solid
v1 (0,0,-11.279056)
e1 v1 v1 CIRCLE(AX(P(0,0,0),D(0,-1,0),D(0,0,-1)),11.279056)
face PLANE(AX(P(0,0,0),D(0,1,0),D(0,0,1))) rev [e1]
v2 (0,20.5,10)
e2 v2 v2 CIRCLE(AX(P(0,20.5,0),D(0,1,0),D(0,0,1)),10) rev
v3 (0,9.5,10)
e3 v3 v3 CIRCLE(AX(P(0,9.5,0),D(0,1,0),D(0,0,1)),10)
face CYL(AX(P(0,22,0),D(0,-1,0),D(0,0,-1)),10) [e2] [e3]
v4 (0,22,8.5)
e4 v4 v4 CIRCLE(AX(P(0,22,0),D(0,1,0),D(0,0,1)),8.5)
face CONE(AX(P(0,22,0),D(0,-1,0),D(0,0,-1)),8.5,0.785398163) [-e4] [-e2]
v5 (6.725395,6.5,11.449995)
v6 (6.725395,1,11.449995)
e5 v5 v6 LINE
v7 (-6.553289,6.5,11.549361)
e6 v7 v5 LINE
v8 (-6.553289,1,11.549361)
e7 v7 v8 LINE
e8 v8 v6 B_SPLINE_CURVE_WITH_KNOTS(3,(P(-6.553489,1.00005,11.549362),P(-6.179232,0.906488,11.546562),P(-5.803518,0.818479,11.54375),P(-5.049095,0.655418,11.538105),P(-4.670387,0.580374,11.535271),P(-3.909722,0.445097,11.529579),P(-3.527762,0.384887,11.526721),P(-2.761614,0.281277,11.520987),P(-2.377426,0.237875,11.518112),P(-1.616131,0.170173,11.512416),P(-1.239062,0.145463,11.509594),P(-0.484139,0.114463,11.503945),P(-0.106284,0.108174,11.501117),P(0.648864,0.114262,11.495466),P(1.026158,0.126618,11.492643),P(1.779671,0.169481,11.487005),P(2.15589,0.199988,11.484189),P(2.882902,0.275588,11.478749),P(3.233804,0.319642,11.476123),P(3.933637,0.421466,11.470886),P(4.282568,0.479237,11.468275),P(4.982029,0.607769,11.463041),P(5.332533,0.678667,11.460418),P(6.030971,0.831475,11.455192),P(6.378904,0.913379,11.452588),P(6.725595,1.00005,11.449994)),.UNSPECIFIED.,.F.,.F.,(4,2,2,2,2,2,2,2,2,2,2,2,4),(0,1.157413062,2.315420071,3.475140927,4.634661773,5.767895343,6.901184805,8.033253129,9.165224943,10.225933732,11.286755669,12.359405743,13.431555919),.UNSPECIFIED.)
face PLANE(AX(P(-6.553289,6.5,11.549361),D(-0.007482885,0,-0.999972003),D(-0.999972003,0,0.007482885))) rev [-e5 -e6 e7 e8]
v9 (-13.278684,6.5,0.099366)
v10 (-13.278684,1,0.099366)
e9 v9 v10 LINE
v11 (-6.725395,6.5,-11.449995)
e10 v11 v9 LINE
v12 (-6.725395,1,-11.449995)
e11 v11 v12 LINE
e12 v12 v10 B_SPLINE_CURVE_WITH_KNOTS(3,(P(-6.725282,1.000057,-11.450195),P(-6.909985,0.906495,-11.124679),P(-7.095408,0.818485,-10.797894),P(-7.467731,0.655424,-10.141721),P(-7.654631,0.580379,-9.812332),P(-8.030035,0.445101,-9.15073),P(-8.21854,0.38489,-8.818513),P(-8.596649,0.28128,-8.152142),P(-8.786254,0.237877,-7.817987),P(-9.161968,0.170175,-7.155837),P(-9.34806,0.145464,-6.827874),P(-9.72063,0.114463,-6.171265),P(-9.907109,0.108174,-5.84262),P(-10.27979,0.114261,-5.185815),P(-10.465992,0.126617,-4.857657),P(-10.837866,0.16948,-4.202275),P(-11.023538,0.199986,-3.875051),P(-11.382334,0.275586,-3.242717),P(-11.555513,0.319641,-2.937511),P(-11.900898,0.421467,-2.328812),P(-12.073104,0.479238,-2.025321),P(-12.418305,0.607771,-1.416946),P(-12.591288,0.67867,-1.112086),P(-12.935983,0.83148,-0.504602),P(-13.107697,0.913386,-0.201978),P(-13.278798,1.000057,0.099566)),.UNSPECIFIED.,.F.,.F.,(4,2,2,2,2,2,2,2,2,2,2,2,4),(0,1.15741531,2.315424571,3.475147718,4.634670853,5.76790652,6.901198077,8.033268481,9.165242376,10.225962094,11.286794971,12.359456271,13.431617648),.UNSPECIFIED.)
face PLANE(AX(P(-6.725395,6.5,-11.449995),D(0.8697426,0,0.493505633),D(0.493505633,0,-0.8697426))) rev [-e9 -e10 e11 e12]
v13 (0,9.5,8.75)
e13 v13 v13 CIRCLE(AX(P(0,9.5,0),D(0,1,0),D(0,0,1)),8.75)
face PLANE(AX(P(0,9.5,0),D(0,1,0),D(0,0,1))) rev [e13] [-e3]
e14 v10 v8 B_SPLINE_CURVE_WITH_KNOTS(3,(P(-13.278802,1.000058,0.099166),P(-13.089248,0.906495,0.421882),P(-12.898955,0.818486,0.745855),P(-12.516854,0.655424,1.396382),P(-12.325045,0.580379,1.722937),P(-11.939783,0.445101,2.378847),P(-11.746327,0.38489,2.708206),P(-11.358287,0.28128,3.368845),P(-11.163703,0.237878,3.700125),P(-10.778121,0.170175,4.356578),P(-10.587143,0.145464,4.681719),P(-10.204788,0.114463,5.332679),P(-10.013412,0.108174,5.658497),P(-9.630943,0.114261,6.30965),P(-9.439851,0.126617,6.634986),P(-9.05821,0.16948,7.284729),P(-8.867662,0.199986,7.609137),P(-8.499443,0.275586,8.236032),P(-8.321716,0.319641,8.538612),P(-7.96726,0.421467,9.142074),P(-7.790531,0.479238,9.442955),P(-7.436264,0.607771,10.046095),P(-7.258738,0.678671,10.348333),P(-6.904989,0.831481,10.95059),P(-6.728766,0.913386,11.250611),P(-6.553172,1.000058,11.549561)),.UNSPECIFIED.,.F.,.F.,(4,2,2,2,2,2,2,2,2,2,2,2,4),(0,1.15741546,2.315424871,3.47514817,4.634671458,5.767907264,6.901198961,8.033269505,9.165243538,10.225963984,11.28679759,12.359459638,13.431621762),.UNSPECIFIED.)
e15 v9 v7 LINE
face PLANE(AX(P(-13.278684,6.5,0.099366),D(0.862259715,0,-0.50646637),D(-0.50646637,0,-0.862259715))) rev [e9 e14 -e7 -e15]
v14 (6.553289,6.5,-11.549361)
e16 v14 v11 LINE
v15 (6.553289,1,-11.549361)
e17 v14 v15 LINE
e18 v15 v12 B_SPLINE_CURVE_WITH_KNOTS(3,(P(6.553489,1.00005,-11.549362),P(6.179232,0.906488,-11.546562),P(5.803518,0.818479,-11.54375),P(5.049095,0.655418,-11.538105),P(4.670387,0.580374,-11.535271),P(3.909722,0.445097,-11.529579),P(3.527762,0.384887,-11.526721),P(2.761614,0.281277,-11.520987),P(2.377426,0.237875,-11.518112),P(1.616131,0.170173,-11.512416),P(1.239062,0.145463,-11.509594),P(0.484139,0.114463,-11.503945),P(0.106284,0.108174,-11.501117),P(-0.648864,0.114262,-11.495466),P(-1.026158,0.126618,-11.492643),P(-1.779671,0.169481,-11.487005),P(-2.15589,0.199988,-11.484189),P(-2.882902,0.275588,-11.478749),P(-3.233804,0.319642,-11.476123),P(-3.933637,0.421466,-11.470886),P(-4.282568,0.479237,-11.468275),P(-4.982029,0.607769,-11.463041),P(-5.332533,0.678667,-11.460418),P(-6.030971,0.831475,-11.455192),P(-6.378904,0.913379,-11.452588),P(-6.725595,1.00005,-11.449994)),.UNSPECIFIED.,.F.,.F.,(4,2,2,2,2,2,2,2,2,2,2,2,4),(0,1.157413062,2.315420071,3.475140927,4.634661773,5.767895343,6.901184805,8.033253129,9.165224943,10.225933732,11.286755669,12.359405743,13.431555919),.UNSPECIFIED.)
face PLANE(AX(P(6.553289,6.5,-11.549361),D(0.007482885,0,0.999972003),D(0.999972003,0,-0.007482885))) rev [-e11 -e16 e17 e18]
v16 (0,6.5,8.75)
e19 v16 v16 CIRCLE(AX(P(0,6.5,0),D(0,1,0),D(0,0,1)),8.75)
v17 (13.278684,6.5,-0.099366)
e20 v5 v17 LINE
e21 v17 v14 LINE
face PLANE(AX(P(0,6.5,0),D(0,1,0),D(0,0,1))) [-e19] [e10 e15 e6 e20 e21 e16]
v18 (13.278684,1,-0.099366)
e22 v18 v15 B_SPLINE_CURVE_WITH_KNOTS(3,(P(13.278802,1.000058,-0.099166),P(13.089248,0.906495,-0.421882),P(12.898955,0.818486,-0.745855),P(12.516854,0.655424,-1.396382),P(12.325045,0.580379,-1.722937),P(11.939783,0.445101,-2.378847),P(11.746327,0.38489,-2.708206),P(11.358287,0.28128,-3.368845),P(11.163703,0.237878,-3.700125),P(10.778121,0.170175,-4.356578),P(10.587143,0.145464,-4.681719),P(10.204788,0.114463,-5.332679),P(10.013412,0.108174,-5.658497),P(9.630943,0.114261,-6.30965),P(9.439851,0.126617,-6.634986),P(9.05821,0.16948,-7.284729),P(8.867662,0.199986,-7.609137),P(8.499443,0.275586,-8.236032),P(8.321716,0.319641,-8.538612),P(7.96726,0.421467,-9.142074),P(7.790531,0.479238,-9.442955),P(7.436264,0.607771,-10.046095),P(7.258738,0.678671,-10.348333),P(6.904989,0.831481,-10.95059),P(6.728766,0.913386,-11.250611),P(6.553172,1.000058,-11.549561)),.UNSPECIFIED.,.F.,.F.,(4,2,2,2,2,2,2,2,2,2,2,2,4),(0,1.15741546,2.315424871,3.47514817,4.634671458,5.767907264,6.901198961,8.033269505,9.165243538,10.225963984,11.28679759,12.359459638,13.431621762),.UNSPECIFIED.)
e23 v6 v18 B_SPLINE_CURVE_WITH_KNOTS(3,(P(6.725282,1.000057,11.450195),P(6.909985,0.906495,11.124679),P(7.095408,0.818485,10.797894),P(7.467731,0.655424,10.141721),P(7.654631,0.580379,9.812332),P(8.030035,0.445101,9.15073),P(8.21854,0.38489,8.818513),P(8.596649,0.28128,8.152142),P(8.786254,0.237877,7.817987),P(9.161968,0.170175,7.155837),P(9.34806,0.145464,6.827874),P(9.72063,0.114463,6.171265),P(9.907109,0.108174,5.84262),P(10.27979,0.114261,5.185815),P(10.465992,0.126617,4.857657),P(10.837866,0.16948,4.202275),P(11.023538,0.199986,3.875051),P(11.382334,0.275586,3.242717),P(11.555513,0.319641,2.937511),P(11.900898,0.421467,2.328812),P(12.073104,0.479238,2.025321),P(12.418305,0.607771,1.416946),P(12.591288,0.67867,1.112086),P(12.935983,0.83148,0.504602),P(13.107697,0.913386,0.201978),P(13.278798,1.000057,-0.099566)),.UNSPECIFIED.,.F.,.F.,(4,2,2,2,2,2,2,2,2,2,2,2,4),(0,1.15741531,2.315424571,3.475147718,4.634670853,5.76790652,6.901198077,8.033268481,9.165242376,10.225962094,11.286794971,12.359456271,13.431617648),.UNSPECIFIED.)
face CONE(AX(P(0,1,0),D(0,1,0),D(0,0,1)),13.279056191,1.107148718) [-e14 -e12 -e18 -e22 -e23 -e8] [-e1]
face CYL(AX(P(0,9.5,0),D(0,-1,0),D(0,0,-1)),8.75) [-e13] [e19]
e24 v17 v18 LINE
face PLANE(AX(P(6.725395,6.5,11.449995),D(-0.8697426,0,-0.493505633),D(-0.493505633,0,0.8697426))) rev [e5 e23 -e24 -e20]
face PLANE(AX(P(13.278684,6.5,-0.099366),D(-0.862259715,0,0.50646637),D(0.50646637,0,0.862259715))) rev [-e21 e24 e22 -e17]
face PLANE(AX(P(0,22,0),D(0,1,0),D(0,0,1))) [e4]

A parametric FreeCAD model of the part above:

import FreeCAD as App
import Part
import Sketcher
from FreeCAD import Vector


def edges_at(feature, points):
    """Names of the edges that pass closest to the given points."""
    edges = feature.Shape.Edges
    near = lambda p: min(range(len(edges)), key=lambda i: edges[i].distToShape(Part.Vertex(*p))[0])
    return sorted({f"Edge{near(p) + 1}" for p in points})

doc = App.newDocument("Part")
body = doc.addObject("PartDesign::Body", "Body")

# Sketch on XZ plane
sketch1 = body.newObject("Sketcher::SketchObject", "Sketch")
sketch1.AttachmentSupport = (doc.getObject("XZ_Plane"), [""])
sketch1.MapMode = "FlatFace"
sketch1.addGeometry([
    Part.LineSegment(Vector(6.553289, -11.549361, 0), Vector(-6.725395, -11.449995, 0)),  # 0
    Part.LineSegment(Vector(-6.725395, -11.449995, 0), Vector(-13.278684, 0.099366, 0)),  # 1
    Part.LineSegment(Vector(-13.278684, 0.099366, 0), Vector(-6.553289, 11.549361, 0)),  # 2
    Part.LineSegment(Vector(-6.553289, 11.549361, 0), Vector(6.725395, 11.449995, 0)),  # 3
    Part.LineSegment(Vector(6.725395, 11.449995, 0), Vector(13.278684, -0.099366, 0)),  # 4
    Part.LineSegment(Vector(13.278684, -0.099366, 0), Vector(6.553289, -11.549361, 0)),  # 5
], False)
sketch1.addConstraint([
    Sketcher.Constraint("Coincident", 0, 2, 1, 1),
    Sketcher.Constraint("Coincident", 1, 2, 2, 1),
    Sketcher.Constraint("Coincident", 2, 2, 3, 1),
    Sketcher.Constraint("Coincident", 3, 2, 4, 1),
    Sketcher.Constraint("Coincident", 4, 2, 5, 1),
    Sketcher.Constraint("Coincident", 5, 2, 0, 1),
    Sketcher.Constraint("Symmetric", 0, 2, 3, 2, -1, 1),
    Sketcher.Constraint("Symmetric", 1, 2, 4, 2, -1, 1),
    Sketcher.Constraint("Symmetric", 2, 2, 5, 2, -1, 1),
    Sketcher.Constraint("Equal", 0, 1),
    Sketcher.Constraint("Equal", 1, 2),
    Sketcher.Constraint("DistanceX", 2, 2, -1, 1, 6.553289),
    Sketcher.Constraint("DistanceY", -1, 1, 2, 2, 11.549361),
    Sketcher.Constraint("DistanceX", 1, 2, 0, 2, 6.553289),
    Sketcher.Constraint("DistanceY", 0, 2, 1, 2, 11.549361),
])
pad1 = body.newObject("PartDesign::Pad", "Pad")
pad1.Profile = sketch1
pad1.Length = 6.5
pad1.Reversed = True

# Sketch on XZ plane
sketch2 = body.newObject("Sketcher::SketchObject", "Sketch001")
sketch2.AttachmentSupport = (doc.getObject("XZ_Plane"), [""])
sketch2.MapMode = "FlatFace"
sketch2.AttachmentOffset = App.Placement(Vector(0, 0, -6.5), App.Rotation())
sketch2.addGeometry(Part.Circle(Vector(0, 0, 0), Vector(0, 0, 1), 8.75), False)
sketch2.addConstraint([
    Sketcher.Constraint("Coincident", 0, 3, -1, 1),
    Sketcher.Constraint("Diameter", 0, 17.5),
])
pad2 = body.newObject("PartDesign::Pad", "Pad001")
pad2.Profile = sketch2
pad2.Length = 3
pad2.Reversed = True

# Sketch on XZ plane
sketch3 = body.newObject("Sketcher::SketchObject", "Sketch002")
sketch3.AttachmentSupport = (doc.getObject("XZ_Plane"), [""])
sketch3.MapMode = "FlatFace"
sketch3.AttachmentOffset = App.Placement(Vector(0, 0, -9.5), App.Rotation())
sketch3.addGeometry(Part.Circle(Vector(0, 0, 0), Vector(0, 0, 1), 10), False)
sketch3.addConstraint([
    Sketcher.Constraint("Coincident", 0, 3, -1, 1),
    Sketcher.Constraint("Diameter", 0, 20.0),
])
pad3 = body.newObject("PartDesign::Pad", "Pad002")
pad3.Profile = sketch3
pad3.Length = 12.5
pad3.Reversed = True
doc.recompute()

chamfer = body.newObject("PartDesign::Chamfer", "Chamfer")
chamfer.Base = (pad3, edges_at(pad3, [(0, 22, -10)]))
chamfer.Size = 1.5

# Sketch on an angled plane
sketch4 = body.newObject("Sketcher::SketchObject", "Sketch003")
sketch4.Placement = App.Placement(Vector(0, 0, 0), App.Rotation(Vector(0.493505633, 0, -0.8697426), Vector(0, 1, 0), Vector(0.8697426, 0, 0.493505633), "ZXY"))
sketch4.addGeometry([
    Part.LineSegment(Vector(13.279056, 1, 0), Vector(11.279056, 0, 0)),
    Part.LineSegment(Vector(11.279056, 0, 0), Vector(13.279056, 0, 0)),
    Part.LineSegment(Vector(13.279056, 0, 0), Vector(13.279056, 1, 0)),
], False)
sketch4.addConstraint([
    Sketcher.Constraint("Coincident", 0, 2, 1, 1),
    Sketcher.Constraint("Coincident", 1, 2, 2, 1),
    Sketcher.Constraint("Coincident", 2, 2, 0, 1),
    Sketcher.Constraint("Horizontal", 1),
    Sketcher.Constraint("Vertical", 2),
    Sketcher.Constraint("PointOnObject", 0, 2, -1),
    Sketcher.Constraint("DistanceX", 1, 1, 1, 2, 2.0),
    Sketcher.Constraint("DistanceY", 2, 1, 2, 2, 1.0),
    Sketcher.Constraint("DistanceX", -1, 1, 0, 2, 11.279056),
])
groove = body.newObject("PartDesign::Groove", "Groove")
groove.Profile = sketch4
groove.ReferenceAxis = (sketch4, ["V_Axis"])
groove.Angle = 360

doc.recompute()
